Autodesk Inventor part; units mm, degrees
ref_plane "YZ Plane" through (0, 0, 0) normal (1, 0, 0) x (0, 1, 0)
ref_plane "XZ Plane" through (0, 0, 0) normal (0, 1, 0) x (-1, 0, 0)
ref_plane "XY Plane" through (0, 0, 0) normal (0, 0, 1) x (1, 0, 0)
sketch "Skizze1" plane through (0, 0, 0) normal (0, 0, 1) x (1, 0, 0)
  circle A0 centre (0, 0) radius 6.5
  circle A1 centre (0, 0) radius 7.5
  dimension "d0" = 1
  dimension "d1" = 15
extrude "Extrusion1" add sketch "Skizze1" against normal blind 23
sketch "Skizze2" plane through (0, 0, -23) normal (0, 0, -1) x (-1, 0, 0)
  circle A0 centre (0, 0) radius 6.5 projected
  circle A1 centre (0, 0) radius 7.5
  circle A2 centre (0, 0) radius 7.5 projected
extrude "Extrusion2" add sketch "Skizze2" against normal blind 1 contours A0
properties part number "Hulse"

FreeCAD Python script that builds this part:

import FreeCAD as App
import Part
import Sketcher
from FreeCAD import Vector

doc = App.newDocument("Part")
body = doc.addObject("PartDesign::Body", "Body")

sketch1 = body.newObject("Sketcher::SketchObject", "Sketch")
sketch1.AttachmentSupport = (doc.getObject("XY_Plane"), [""])
sketch1.MapMode = "FlatFace"
sketch1.addGeometry(Part.Circle(Vector(0, 0, 0), Vector(0, 0, 1), 8), False)
sketch1.addGeometry(Part.Circle(Vector(0, 0, 0), Vector(0, 0, 1), 6), False)
sketch1.addConstraint(Sketcher.Constraint("Coincident", 0, 3, -1, 1))
sketch1.addConstraint(Sketcher.Constraint("Coincident", 1, 3, -1, 1))
sketch1.addConstraint(Sketcher.Constraint("Diameter", 0, 15.0))
sketch1.addConstraint(Sketcher.Constraint("Diameter", 1, 13.0))
pad1 = body.newObject("PartDesign::Pad", "Pad")
pad1.Profile = sketch1
pad1.Length = 23
pad1.Reversed = True

sketch2 = body.newObject("Sketcher::SketchObject", "Sketch001")
sketch2.AttachmentSupport = (doc.getObject("XY_Plane"), [""])
sketch2.MapMode = "FlatFace"
sketch2.AttachmentOffset = App.Placement(Vector(0, 0, -23), App.Rotation())
sketch2.addGeometry(Part.Circle(Vector(0, 0, 0), Vector(0, 0, 1), 6), False)
sketch2.addConstraint(Sketcher.Constraint("Coincident", 0, 3, -1, 1))
sketch2.addConstraint(Sketcher.Constraint("Diameter", 0, 13.0))
pad2 = body.newObject("PartDesign::Pad", "Pad001")
pad2.Profile = sketch2
pad2.Length = 1

doc.recompute()
